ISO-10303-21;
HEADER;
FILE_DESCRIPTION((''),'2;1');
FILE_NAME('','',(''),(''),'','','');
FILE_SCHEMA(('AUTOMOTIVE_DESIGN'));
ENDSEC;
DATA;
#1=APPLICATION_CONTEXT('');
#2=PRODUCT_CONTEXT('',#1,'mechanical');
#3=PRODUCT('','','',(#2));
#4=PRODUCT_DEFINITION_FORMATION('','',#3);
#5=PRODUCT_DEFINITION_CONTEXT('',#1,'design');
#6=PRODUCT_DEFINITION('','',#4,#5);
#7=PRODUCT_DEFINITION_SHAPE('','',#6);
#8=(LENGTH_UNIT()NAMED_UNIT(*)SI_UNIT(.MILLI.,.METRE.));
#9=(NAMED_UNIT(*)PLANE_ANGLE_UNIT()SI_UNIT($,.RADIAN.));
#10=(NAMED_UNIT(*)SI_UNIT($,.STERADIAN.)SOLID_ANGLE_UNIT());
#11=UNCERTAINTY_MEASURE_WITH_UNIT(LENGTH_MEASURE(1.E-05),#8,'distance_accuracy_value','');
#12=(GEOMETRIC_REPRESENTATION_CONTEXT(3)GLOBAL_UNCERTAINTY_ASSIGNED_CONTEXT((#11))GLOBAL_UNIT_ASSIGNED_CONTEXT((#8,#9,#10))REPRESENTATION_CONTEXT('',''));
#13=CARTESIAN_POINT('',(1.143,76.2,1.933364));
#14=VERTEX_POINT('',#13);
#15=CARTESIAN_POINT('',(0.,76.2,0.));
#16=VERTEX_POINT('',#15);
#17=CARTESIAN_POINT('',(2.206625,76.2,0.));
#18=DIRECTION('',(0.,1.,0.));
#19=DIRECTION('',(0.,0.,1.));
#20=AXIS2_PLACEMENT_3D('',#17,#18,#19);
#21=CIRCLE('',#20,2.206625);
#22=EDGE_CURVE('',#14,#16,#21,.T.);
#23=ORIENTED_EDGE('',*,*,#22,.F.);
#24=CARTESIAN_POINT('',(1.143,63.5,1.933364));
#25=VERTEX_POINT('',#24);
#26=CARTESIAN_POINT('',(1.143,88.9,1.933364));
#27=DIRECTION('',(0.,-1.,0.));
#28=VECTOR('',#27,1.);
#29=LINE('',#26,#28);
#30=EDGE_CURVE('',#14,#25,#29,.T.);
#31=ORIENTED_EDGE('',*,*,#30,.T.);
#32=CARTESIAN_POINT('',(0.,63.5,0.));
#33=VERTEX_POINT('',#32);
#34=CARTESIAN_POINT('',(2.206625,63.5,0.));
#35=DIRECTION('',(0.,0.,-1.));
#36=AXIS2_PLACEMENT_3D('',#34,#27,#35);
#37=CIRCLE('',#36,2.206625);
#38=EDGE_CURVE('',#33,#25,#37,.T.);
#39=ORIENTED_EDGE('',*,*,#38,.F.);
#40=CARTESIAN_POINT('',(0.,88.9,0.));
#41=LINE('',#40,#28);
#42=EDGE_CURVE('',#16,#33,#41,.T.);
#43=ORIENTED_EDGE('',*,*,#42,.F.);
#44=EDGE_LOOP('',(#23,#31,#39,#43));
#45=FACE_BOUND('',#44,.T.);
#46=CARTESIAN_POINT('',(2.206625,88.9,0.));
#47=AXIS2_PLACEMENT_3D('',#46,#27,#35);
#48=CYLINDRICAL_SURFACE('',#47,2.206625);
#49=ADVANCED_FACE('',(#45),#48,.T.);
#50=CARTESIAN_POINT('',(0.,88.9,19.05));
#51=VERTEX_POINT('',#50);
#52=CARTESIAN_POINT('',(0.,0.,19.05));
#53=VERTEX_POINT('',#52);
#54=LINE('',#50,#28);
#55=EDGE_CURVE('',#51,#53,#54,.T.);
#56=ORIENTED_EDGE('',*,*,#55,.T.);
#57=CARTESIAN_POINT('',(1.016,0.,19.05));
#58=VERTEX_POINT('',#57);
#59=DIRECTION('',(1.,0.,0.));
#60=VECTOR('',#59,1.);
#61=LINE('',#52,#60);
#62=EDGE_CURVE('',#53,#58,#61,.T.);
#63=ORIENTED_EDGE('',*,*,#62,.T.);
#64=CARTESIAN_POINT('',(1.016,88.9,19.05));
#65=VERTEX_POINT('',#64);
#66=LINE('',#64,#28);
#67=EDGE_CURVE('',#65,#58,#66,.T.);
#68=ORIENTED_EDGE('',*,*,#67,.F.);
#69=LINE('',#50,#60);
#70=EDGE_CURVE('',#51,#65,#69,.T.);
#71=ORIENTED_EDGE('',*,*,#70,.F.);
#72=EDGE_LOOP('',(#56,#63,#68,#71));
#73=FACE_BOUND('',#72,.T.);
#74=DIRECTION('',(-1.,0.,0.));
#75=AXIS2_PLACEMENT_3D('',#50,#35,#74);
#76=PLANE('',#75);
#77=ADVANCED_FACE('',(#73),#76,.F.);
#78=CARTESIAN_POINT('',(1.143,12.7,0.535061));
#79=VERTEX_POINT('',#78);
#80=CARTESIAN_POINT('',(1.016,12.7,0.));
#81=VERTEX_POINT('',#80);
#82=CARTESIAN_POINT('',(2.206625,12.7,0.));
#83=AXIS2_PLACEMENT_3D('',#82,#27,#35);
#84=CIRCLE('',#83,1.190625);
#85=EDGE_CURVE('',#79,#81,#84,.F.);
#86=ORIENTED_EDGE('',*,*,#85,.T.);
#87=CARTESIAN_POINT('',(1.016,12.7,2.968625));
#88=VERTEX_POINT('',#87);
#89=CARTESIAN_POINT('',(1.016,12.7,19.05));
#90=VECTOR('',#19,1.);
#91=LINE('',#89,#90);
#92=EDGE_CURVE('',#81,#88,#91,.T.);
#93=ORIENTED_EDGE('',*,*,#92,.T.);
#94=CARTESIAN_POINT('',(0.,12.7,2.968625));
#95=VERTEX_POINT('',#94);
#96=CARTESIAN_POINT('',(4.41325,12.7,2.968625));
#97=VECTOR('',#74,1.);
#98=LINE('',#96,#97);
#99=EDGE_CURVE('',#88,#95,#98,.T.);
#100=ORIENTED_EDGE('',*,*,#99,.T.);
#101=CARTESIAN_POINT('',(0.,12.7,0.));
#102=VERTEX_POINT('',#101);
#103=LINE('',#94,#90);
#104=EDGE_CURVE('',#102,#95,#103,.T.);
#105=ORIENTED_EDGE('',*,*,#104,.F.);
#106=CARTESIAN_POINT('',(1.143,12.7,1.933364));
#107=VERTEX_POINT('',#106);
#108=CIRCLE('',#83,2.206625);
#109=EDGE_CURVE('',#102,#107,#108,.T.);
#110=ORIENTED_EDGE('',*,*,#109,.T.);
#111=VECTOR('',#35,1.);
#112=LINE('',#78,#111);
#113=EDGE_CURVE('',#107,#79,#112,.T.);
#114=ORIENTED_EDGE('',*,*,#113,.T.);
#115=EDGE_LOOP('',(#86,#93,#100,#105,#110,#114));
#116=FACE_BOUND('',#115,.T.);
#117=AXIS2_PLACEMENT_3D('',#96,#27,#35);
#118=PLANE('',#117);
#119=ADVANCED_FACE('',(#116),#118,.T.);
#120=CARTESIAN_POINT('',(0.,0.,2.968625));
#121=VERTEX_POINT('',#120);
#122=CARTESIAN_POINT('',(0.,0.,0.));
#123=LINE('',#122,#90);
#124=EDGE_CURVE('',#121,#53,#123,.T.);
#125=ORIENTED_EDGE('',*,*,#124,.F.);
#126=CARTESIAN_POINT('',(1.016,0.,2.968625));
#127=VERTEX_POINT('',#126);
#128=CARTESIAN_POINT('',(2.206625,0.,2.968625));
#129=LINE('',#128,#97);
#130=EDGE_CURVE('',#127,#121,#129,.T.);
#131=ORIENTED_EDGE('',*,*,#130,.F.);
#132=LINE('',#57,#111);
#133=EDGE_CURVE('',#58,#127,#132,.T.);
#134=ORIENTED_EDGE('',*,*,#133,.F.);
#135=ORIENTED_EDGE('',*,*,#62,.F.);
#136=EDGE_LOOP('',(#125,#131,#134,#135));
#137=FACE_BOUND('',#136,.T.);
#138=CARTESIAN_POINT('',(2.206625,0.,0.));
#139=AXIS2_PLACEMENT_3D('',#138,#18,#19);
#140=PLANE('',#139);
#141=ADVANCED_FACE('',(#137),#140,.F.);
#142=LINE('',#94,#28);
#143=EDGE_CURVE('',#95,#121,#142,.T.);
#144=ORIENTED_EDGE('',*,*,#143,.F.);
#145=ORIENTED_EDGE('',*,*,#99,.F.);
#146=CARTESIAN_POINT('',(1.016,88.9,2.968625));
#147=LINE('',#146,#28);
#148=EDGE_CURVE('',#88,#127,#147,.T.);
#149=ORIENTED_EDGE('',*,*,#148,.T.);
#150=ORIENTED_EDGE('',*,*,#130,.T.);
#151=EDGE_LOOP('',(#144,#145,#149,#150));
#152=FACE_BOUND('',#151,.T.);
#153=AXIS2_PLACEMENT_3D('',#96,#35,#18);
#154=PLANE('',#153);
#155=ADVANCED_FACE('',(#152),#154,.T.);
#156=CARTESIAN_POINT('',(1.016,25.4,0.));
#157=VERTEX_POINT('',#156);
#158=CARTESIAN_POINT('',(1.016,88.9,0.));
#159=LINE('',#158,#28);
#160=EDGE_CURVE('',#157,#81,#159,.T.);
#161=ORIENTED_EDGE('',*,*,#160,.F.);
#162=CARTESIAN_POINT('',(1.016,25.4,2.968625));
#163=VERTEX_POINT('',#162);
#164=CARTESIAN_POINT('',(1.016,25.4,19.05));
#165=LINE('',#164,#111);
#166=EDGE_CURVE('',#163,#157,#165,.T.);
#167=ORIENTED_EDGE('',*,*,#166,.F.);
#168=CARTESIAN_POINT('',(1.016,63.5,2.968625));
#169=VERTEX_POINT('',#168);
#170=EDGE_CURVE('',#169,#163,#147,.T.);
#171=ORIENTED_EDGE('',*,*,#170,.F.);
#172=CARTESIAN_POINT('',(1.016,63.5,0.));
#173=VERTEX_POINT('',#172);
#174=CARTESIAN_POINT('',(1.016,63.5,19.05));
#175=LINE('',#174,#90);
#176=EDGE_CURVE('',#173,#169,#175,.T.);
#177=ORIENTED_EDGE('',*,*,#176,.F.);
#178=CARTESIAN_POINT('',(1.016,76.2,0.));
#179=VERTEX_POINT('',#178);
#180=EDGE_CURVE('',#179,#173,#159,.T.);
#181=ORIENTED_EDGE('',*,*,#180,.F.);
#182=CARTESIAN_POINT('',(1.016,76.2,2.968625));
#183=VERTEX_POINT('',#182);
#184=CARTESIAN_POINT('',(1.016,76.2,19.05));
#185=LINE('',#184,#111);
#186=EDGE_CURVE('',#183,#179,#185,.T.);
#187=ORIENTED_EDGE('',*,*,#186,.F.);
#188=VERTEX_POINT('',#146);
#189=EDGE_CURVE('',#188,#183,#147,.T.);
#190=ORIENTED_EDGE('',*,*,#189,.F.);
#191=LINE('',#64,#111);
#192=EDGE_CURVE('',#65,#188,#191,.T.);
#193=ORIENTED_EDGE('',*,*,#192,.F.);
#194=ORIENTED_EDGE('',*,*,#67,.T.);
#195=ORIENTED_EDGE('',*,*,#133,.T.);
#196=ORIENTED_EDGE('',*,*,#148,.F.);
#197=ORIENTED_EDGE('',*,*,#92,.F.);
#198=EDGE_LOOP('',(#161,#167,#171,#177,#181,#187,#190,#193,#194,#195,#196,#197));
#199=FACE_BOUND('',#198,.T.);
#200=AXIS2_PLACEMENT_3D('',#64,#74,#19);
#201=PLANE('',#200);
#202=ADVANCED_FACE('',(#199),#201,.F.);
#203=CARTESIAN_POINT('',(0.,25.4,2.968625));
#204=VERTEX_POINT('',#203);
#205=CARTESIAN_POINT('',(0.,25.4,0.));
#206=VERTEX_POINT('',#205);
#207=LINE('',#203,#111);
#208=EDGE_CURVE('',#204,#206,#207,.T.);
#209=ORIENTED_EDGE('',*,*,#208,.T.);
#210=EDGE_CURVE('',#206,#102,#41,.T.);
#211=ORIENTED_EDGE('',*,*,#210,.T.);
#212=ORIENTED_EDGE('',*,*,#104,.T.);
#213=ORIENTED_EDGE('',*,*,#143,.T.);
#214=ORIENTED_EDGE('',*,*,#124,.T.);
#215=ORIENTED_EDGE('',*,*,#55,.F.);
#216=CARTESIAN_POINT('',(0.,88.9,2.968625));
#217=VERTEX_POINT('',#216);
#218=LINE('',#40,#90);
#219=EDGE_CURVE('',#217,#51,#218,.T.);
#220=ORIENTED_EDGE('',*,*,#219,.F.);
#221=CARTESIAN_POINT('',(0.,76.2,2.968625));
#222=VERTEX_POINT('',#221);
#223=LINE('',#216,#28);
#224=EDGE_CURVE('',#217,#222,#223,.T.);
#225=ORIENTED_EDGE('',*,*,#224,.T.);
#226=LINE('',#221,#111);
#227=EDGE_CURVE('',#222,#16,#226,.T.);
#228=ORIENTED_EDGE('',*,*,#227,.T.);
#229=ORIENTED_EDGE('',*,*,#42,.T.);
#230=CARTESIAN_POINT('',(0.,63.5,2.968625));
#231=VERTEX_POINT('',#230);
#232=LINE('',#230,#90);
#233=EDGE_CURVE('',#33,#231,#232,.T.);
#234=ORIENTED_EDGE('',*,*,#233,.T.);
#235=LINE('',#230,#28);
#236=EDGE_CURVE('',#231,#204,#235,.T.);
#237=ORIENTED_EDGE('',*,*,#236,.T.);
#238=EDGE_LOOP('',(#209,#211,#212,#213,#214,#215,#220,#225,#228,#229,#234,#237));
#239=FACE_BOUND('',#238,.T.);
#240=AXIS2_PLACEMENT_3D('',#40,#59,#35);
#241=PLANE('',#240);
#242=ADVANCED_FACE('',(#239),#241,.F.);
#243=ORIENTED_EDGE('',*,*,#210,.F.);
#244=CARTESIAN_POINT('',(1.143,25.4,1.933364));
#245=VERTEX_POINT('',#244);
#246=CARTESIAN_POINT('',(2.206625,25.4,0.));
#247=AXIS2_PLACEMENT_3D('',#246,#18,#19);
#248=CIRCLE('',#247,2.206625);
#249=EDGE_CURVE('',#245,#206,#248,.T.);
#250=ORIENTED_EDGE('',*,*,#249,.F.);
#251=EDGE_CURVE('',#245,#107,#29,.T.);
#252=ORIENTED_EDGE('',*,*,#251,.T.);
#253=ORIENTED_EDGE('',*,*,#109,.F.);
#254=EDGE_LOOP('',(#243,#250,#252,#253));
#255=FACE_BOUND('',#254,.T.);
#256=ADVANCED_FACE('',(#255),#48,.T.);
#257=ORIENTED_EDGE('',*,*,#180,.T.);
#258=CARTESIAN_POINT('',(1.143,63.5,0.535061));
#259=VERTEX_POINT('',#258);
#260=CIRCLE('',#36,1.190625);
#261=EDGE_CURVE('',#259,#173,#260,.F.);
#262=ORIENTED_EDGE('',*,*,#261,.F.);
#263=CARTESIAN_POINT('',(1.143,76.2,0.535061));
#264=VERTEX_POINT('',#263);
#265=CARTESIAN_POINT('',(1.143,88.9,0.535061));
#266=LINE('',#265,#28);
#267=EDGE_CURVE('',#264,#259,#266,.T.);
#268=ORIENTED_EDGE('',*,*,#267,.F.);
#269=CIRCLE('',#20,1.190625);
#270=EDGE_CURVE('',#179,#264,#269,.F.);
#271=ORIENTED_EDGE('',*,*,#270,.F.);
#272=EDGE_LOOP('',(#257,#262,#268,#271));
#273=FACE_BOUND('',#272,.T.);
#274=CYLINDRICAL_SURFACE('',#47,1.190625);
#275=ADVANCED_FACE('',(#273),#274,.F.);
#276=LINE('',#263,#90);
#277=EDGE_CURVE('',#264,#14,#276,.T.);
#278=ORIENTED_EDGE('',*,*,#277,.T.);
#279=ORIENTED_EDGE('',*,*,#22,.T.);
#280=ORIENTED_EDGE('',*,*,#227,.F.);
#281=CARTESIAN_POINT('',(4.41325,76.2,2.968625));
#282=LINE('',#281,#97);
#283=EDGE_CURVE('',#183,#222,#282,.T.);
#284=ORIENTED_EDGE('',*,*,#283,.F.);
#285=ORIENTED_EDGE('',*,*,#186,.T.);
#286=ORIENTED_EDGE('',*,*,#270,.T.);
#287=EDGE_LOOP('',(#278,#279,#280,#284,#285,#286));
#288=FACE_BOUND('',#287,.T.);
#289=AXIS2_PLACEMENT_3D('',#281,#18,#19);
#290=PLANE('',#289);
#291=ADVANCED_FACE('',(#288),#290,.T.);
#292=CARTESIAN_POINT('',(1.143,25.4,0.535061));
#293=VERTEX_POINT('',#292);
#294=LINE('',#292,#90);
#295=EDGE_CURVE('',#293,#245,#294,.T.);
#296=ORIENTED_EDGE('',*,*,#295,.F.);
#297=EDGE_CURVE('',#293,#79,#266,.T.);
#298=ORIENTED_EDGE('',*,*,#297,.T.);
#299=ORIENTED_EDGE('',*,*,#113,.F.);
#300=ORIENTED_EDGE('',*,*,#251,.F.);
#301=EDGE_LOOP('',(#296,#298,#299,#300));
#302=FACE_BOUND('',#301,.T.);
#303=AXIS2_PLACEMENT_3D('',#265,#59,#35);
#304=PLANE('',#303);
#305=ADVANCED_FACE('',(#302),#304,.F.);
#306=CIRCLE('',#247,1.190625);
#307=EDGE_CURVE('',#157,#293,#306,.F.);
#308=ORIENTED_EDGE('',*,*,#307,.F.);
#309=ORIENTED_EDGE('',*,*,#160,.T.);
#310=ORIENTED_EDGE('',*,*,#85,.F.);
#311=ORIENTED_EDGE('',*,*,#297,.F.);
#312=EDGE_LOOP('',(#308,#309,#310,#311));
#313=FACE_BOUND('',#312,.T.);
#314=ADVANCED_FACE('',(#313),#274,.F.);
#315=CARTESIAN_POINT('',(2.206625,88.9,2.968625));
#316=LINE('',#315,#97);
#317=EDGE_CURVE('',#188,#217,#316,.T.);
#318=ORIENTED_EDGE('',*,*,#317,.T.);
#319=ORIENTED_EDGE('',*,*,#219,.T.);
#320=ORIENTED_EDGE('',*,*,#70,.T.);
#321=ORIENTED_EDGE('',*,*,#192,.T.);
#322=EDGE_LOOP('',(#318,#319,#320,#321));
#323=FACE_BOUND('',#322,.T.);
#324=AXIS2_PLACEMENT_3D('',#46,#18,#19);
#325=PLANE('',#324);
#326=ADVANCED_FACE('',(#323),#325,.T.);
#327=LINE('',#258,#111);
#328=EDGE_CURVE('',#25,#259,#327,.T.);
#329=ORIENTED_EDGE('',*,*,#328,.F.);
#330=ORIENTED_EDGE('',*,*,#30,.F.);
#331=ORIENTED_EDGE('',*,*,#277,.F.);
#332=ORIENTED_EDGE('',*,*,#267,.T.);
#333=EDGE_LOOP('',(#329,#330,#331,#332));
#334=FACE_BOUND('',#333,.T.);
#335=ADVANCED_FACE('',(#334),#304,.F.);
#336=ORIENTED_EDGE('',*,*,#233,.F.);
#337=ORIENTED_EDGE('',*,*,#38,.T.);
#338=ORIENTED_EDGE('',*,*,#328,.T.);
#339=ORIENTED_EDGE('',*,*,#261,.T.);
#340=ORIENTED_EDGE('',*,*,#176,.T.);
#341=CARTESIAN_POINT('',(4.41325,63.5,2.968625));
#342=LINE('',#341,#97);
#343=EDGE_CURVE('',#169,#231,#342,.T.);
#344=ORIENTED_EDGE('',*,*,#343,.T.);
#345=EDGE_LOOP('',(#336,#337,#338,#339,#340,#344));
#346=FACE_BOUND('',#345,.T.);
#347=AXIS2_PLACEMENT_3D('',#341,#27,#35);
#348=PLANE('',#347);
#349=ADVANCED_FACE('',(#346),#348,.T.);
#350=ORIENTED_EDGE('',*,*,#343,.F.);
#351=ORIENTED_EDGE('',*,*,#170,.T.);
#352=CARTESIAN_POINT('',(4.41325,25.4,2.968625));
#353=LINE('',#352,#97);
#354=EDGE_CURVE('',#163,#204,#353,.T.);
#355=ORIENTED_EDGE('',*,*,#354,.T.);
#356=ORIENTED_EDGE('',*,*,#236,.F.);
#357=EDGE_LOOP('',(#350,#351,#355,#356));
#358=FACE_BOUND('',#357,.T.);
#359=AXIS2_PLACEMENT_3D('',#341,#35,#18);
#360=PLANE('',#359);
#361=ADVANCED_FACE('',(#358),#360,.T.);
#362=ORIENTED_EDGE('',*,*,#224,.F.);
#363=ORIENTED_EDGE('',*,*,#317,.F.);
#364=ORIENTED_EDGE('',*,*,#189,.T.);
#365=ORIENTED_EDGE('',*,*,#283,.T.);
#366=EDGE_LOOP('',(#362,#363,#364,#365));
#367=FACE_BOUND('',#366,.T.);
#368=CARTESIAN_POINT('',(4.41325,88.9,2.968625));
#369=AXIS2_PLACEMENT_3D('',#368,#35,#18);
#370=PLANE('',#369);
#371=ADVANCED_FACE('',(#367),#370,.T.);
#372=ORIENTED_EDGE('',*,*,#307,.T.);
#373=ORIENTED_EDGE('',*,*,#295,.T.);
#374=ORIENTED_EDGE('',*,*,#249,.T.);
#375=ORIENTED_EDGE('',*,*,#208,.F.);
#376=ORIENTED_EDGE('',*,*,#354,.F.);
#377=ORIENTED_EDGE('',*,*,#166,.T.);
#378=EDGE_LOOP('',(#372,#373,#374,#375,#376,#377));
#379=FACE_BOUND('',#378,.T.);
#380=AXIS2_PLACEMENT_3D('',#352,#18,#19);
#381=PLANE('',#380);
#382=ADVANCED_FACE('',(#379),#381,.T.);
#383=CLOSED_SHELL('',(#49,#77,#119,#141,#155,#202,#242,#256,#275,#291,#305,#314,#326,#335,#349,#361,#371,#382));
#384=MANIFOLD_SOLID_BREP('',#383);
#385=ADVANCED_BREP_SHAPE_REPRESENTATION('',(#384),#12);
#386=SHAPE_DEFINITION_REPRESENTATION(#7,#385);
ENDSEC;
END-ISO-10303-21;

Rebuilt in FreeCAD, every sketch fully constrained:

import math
import FreeCAD as App
import Part
import Sketcher

V = App.Vector
Q = App.Units.Quantity


def add_polygon(sketch, points):
    """Adds a closed chain of lines whose ends are joined by coincident constraints."""
    first, n = sketch.GeometryCount, len(points)
    for a, b in zip(points, points[1:] + points[:1]):
        sketch.addGeometry(Part.LineSegment(App.Vector(*a, 0), App.Vector(*b, 0)), False)
    for i in range(n):
        sketch.addConstraint(Sketcher.Constraint("Coincident", first + i, 2, first + (i + 1) % n, 1))

doc = App.newDocument("Part")
body = doc.addObject("PartDesign::Body", "Body")

sketch1 = body.newObject("Sketcher::SketchObject", "Sketch")
sketch1.AttachmentSupport = (doc.getObject("XZ_Plane"), [""])
sketch1.MapMode = "FlatFace"
sketch1.addGeometry([
    Part.LineSegment(V(0, 0, 0), V(0, 19.1, 0)),
    Part.LineSegment(V(0, 19.1, 0), V(1, 19.1, 0)),
    Part.LineSegment(V(1, 19.1, 0), V(1, 0, 0)),
    Part.ArcOfCircle(Part.Circle(V(2.2, 0, 0), V(0, 0, 1), 1.2), math.radians(180), math.radians(513)),
    Part.LineSegment(V(1.1, 0.5, 0), V(1.1, 1.9, 0)),
    Part.ArcOfCircle(Part.Circle(V(2.2, 0, 0), V(0, 0, 1), 2.2), math.radians(180), math.radians(479)),
], False)
sketch1.addConstraint([
    Sketcher.Constraint("Coincident", 0, 2, 1, 1),
    Sketcher.Constraint("Coincident", 1, 2, 2, 1),
    Sketcher.Constraint("Tangent", 2, 2, 3, 1),
    Sketcher.Constraint("Coincident", 3, 2, 4, 1),
    Sketcher.Constraint("Coincident", 4, 2, 5, 2),
    Sketcher.Constraint("Tangent", 5, 1, 0, 1),
    Sketcher.Constraint("Vertical", 0),
    Sketcher.Constraint("Horizontal", 1),
    Sketcher.Constraint("Vertical", 2),
    Sketcher.Constraint("Vertical", 4),
    Sketcher.Constraint("Coincident", 5, 1, -1, 1),
    Sketcher.Constraint("Coincident", 5, 3, 3, 3),
    Sketcher.Constraint("Radius", 3, Q("0.046875 in")),
    Sketcher.Constraint("DistanceX", 1, 1, 1, 2, Q("0.04 in")),
    Sketcher.Constraint("DistanceY", 0, 1, 0, 2, Q("0.75 in")),
    Sketcher.Constraint("DistanceX", -1, 1, 3, 2, Q("0.045 in")),
])
pad1 = body.newObject("PartDesign::Pad", "Pad")
pad1.Profile = sketch1
pad1.Length = Q("3.5 in")
pad1.Reversed = True

sketch2 = body.newObject("Sketcher::SketchObject", "Sketch001")
sketch2.AttachmentSupport = (doc.getObject("YZ_Plane"), [""])
sketch2.MapMode = "FlatFace"
add_polygon(sketch2, [(13, 3), (0, 3), (0, -3), (13, -3)])
add_polygon(sketch2, [(38, 3), (25, 3), (25, -3), (38, -3)])
add_polygon(sketch2, [(64, 3), (51, 3), (51, -3), (64, -3)])
add_polygon(sketch2, [(89, 3), (76, 3), (76, -3), (89, -3)])
sketch2.addConstraint([
    Sketcher.Constraint("Horizontal", 0),
    Sketcher.Constraint("Vertical", 1),
    Sketcher.Constraint("Horizontal", 2),
    Sketcher.Constraint("Vertical", 3),
    Sketcher.Constraint("Horizontal", 4),
    Sketcher.Constraint("Vertical", 5),
    Sketcher.Constraint("Horizontal", 6),
    Sketcher.Constraint("Vertical", 7),
    Sketcher.Constraint("Horizontal", 8),
    Sketcher.Constraint("Vertical", 9),
    Sketcher.Constraint("Horizontal", 10),
    Sketcher.Constraint("Vertical", 11),
    Sketcher.Constraint("Horizontal", 12),
    Sketcher.Constraint("Vertical", 13),
    Sketcher.Constraint("Horizontal", 14),
    Sketcher.Constraint("Vertical", 15),
    Sketcher.Constraint("Symmetric", 0, 2, 1, 2, -1, 1),
    Sketcher.Constraint("Horizontal", 3, 2, 4, 2),
    Sketcher.Constraint("Horizontal", 2, 2, 5, 2),
    Sketcher.Constraint("Horizontal", 7, 2, 8, 2),
    Sketcher.Constraint("Horizontal", 6, 2, 9, 2),
    Sketcher.Constraint("Horizontal", 11, 2, 12, 2),
    Sketcher.Constraint("Horizontal", 10, 2, 13, 2),
    Sketcher.Constraint("Equal", 2, 4),
    Sketcher.Constraint("Equal", 6, 8),
    Sketcher.Constraint("Equal", 10, 12),
    Sketcher.Constraint("DistanceX", 0, 2, 0, 1, Q("0.5 in")),
    Sketcher.Constraint("DistanceX", -1, 1, 4, 2, Q("1 in")),
    Sketcher.Constraint("DistanceX", -1, 1, 8, 2, Q("2 in")),
    Sketcher.Constraint("DistanceX", -1, 1, 12, 2, Q("3 in")),
    Sketcher.Constraint("DistanceY", 1, 2, 1, 1, 5.93725),
])
pocket1 = body.newObject("PartDesign::Pocket", "Pocket")
pocket1.Profile = sketch2
pocket1.Type = "ThroughAll"
pocket1.Reversed = True

sketch3 = body.newObject("Sketcher::SketchObject", "Sketch002")
sketch3.AttachmentSupport = (doc.getObject("YZ_Plane"), [""])
sketch3.MapMode = "FlatFace"
add_polygon(sketch3, [(51, 3), (38, 3), (38, -3), (51, -3)])
sketch3.addConstraint([
    Sketcher.Constraint("Horizontal", 0),
    Sketcher.Constraint("Vertical", 1),
    Sketcher.Constraint("Horizontal", 2),
    Sketcher.Constraint("Vertical", 3),
    Sketcher.Constraint("DistanceX", 0, 2, 0, 1, Q("0.5 in")),
    Sketcher.Constraint("DistanceX", -1, 1, 2, 2, Q("2 in")),
    Sketcher.Constraint("DistanceY", 1, 2, 1, 1, 5.93725),
    Sketcher.Constraint("DistanceY", -1, 1, 0, 2, 2.968625),
])
pocket2 = body.newObject("PartDesign::Pocket", "Pocket001")
pocket2.Profile = sketch3
pocket2.Type = "ThroughAll"
pocket2.Reversed = True

doc.recompute()
